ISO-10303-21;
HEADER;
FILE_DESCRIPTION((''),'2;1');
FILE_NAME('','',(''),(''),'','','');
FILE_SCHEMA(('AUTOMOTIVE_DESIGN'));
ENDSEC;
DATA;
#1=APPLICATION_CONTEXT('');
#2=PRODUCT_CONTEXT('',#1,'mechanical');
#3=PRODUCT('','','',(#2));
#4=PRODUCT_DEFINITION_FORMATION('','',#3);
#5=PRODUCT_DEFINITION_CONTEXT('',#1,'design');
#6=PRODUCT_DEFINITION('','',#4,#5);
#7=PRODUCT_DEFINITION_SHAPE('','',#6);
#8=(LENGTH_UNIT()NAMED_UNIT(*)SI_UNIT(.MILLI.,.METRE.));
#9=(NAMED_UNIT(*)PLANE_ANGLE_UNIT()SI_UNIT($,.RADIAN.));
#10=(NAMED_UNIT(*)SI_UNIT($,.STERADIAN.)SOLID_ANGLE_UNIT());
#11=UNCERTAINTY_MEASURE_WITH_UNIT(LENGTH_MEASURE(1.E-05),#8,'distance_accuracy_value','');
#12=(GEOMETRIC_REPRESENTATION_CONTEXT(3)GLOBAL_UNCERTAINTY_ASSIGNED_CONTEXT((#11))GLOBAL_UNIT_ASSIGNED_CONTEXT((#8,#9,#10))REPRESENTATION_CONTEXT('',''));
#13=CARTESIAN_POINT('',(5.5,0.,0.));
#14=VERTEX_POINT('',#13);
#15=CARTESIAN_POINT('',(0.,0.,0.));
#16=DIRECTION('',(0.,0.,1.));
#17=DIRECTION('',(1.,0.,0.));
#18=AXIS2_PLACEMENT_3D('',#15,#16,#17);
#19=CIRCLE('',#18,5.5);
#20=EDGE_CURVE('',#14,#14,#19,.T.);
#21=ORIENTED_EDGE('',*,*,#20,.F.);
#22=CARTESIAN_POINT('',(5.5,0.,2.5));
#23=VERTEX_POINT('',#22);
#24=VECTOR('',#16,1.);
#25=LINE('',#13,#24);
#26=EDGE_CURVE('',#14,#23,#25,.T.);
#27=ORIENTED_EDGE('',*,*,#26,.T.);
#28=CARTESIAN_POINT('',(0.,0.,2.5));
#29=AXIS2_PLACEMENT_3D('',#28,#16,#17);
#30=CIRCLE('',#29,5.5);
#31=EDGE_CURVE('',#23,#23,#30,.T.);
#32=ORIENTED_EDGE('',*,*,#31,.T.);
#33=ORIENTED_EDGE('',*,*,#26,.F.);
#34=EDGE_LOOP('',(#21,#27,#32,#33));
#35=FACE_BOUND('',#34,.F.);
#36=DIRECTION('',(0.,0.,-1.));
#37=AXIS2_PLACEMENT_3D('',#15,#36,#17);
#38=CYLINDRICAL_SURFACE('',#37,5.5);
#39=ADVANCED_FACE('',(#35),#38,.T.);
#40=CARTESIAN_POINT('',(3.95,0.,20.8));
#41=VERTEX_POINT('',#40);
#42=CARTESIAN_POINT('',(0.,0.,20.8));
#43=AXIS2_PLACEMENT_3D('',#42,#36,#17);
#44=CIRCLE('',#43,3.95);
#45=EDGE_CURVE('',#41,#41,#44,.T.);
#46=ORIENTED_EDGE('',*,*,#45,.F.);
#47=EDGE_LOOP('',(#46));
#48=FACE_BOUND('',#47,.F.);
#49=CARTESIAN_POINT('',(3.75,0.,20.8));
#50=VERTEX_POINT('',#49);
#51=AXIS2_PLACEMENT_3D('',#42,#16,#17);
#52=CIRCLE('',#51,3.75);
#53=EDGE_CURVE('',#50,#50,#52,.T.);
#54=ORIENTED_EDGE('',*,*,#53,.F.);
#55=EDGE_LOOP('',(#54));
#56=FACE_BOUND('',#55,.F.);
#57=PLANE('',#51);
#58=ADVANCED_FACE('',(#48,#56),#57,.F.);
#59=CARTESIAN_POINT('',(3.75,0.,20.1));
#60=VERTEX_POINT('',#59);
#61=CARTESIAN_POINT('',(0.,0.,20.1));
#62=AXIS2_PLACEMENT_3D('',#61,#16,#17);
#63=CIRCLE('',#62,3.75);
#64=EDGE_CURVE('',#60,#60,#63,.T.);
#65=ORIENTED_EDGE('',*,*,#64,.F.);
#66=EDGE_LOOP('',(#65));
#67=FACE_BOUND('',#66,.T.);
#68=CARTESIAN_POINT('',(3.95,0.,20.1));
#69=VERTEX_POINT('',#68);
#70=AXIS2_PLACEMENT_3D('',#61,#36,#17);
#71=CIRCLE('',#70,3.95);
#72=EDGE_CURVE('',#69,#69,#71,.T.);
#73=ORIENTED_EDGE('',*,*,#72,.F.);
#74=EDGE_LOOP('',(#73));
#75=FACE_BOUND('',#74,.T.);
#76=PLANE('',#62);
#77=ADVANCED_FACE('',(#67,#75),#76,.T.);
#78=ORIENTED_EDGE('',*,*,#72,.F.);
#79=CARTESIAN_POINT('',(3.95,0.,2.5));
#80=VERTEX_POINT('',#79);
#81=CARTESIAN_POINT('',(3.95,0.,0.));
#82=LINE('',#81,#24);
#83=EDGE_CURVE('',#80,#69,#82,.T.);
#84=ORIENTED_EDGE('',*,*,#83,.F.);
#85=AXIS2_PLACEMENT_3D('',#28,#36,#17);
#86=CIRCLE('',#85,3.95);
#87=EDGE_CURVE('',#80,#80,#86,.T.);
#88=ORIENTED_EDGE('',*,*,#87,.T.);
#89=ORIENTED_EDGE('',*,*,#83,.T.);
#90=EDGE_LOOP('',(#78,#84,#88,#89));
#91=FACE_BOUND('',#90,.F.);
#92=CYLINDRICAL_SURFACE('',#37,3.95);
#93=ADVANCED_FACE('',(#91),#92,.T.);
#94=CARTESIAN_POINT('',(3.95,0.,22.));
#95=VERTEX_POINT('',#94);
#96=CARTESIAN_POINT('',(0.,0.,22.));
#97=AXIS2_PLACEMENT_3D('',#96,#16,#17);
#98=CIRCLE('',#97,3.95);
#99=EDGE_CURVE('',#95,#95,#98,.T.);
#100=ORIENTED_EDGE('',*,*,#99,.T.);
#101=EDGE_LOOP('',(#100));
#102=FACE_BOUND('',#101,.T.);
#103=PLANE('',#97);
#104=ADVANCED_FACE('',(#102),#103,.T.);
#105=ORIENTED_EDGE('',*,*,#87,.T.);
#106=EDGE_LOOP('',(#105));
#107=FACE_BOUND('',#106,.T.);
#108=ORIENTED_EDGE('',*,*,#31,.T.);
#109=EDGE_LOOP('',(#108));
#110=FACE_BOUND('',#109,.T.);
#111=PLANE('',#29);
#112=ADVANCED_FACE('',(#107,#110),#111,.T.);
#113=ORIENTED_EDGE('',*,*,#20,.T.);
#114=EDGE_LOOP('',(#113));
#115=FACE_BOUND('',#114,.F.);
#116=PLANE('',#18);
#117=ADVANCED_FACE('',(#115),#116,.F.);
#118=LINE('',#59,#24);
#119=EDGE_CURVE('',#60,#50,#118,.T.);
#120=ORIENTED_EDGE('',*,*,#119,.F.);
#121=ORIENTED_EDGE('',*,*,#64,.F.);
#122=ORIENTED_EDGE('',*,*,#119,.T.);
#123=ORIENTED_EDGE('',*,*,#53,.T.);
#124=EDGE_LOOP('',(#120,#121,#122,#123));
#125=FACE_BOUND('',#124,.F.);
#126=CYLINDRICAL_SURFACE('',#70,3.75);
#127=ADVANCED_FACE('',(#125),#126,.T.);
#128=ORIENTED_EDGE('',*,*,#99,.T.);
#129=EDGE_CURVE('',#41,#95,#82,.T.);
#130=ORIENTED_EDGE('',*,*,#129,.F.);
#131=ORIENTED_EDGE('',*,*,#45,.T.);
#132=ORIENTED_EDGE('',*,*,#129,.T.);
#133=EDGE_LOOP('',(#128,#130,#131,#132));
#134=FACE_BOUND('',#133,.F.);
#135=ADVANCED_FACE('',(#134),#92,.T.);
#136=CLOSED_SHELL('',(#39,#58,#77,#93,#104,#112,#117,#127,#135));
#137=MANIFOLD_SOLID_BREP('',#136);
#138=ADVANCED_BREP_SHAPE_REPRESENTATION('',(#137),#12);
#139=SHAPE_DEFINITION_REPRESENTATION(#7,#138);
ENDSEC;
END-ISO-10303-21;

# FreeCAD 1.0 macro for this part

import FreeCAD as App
import Part
import Sketcher

V = App.Vector

doc = App.newDocument("Part")
params = doc.addObject("Spreadsheet::Sheet", "Params")
for row, (alias, value) in enumerate([
    ("sketch1_diameter", "7.9 mm"),
    ("pad1_length", "22 mm"),
    ("sketch2_diameter", "11 mm"),
    ("pad2_length", "2.5 mm"),
    ("sketch3_diameter", "7.5 mm"),
    ("pad3_length", "0.7 mm"),
], start=1):
    params.set(f"A{row}", alias)
    params.set(f"B{row}", "=" + value)
    params.setAlias(f"B{row}", alias)

body = doc.addObject("PartDesign::Body", "Body")

# Sketch on XY plane
sketch1 = body.newObject("Sketcher::SketchObject", "Sketch")
sketch1.AttachmentSupport = (doc.getObject("XY_Plane"), [""])
sketch1.MapMode = "FlatFace"
sketch1.addGeometry(Part.Circle(V(0, 0, 0), V(0, 0, 1), 4), False)
sketch1.addConstraint([
    Sketcher.Constraint("Coincident", 0, 3, -1, 1),
    Sketcher.Constraint("Diameter", 0, 7.9),
])
sketch1.setExpression("Constraints[1]", "Params.sketch1_diameter")
pad1 = body.newObject("PartDesign::Pad", "Pad")
pad1.Profile = sketch1
pad1.setExpression("Length", "Params.pad1_length")

# Sketch on XY plane
sketch2 = body.newObject("Sketcher::SketchObject", "Sketch001")
sketch2.AttachmentSupport = (doc.getObject("XY_Plane"), [""])
sketch2.MapMode = "FlatFace"
sketch2.addGeometry(Part.Circle(V(0, 0, 0), V(0, 0, 1), 6), False)
sketch2.addConstraint([
    Sketcher.Constraint("Coincident", 0, 3, -1, 1),
    Sketcher.Constraint("Diameter", 0, 11.0),
])
sketch2.setExpression("Constraints[1]", "Params.sketch2_diameter")
pad2 = body.newObject("PartDesign::Pad", "Pad001")
pad2.Profile = sketch2
pad2.setExpression("Length", "Params.pad2_length")
body2 = doc.addObject("PartDesign::Body", "Body001")

# Sketch on XY plane
sketch3 = body2.newObject("Sketcher::SketchObject", "Sketch002")
sketch3.AttachmentSupport = (doc.getObject("XY_Plane001"), [""])
sketch3.MapMode = "FlatFace"
sketch3.addGeometry([
    Part.Circle(V(0, 0, 0), V(0, 0, 1), 7.4),
    Part.Circle(V(0, 0, 0), V(0, 0, 1), 3.8),
], False)
sketch3.addConstraint([
    Sketcher.Constraint("Coincident", 0, 3, -1, 1),
    Sketcher.Constraint("Coincident", 1, 3, -1, 1),
    Sketcher.Constraint("Diameter", 1, 7.5),
    Sketcher.Constraint("Diameter", 0, 14.871854),
])
sketch3.setExpression("Constraints[2]", "Params.sketch3_diameter")
pad3 = body2.newObject("PartDesign::Pad", "Pad002")
pad3.Profile = sketch3
pad3.setExpression("Length", "Params.pad3_length")
body3 = doc.addObject("PartDesign::Body", "Body002")
doc.recompute()

body2.Placement = App.Placement(V(0, 0, 20.1), App.Rotation(V(0, 0, 1), 0))
boolean = body3.newObject("PartDesign::Boolean", "Boolean")
boolean.Type = "Fuse"
boolean.addObjects([body2])
doc.recompute()

boolean2 = body.newObject("PartDesign::Boolean", "Boolean001")
boolean2.Type = "Cut"
boolean2.addObjects([body3])

doc.recompute()
